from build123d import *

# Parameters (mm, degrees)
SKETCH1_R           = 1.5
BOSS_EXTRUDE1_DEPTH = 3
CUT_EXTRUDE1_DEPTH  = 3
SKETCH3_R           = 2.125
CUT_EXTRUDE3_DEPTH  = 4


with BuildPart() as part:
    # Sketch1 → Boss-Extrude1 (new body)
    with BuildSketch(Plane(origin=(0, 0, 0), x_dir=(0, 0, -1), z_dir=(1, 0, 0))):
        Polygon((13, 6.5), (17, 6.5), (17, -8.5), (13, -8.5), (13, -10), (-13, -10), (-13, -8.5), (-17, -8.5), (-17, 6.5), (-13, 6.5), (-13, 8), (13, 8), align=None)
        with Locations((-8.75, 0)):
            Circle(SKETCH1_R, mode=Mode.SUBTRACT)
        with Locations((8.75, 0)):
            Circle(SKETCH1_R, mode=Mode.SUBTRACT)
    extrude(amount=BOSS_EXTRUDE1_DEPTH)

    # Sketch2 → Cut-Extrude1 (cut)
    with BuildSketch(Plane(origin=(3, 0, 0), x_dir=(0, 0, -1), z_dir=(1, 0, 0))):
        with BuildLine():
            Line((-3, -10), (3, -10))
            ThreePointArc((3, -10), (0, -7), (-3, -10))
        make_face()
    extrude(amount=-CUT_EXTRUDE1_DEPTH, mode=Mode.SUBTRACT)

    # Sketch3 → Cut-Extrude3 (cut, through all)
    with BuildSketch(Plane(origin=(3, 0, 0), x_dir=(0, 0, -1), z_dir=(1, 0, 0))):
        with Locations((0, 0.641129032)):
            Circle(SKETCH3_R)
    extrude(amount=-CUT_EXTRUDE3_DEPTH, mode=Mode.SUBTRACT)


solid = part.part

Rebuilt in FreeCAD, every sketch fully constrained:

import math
import FreeCAD as App
import Part
import Sketcher
from FreeCAD import Vector


def add_polygon(sketch, points):
    """Adds a closed chain of lines whose ends are joined by coincident constraints."""
    first, n = sketch.GeometryCount, len(points)
    for a, b in zip(points, points[1:] + points[:1]):
        sketch.addGeometry(Part.LineSegment(App.Vector(*a, 0), App.Vector(*b, 0)), False)
    for i in range(n):
        sketch.addConstraint(Sketcher.Constraint("Coincident", first + i, 2, first + (i + 1) % n, 1))

doc = App.newDocument("Part")
params = doc.addObject("Spreadsheet::Sheet", "Params")
for row, (alias, value) in enumerate([
    ("sketch1_diameter", "3 mm"),
    ("sketch1_width", "15 mm"),
    ("sketch1_height", "4 mm"),
    ("sketch1_height2", "26 mm"),
    ("sketch1_width2", "1.5 mm"),
    ("pad1_length", "3 mm"),
    ("sketch2_radius", "3 mm"),
    ("pocket1_length", "3 mm"),
    ("sketch3_diameter", "4.25 mm"),
], start=1):
    params.set(f"A{row}", alias)
    params.set(f"B{row}", "=" + value)
    params.setAlias(f"B{row}", alias)

body = doc.addObject("PartDesign::Body", "Body")

# Sketch on YZ plane
sketch1 = body.newObject("Sketcher::SketchObject", "Sketch")
sketch1.AttachmentSupport = (doc.getObject("YZ_Plane"), [""])
sketch1.MapMode = "FlatFace"
add_polygon(sketch1, [(6.5, -17), (6.5, -13), (8, -13), (8, 13), (6.5, 13), (6.5, 17), (-8.5, 17), (-8.5, 13), (-10, 13), (-10, -13), (-8.5, -13), (-8.5, -17)])  # lines 0-11
sketch1.addGeometry(Part.Circle(Vector(0, -8.8, 0), Vector(0, 0, 1), 1.5), False)  # 12
sketch1.addGeometry(Part.Circle(Vector(0, 8.8, 0), Vector(0, 0, 1), 1.5), False)  # 13
sketch1.addConstraint([
    Sketcher.Constraint("Vertical", 0),
    Sketcher.Constraint("Horizontal", 1),
    Sketcher.Constraint("Vertical", 2),
    Sketcher.Constraint("Horizontal", 3),
    Sketcher.Constraint("Vertical", 4),
    Sketcher.Constraint("Horizontal", 5),
    Sketcher.Constraint("Vertical", 6),
    Sketcher.Constraint("Horizontal", 7),
    Sketcher.Constraint("Vertical", 8),
    Sketcher.Constraint("Horizontal", 9),
    Sketcher.Constraint("Vertical", 10),
    Sketcher.Constraint("Horizontal", 11),
    Sketcher.Constraint("Equal", 12, 13),
    Sketcher.Constraint("Symmetric", 12, 3, 13, 3, -1, 1),
    Sketcher.Constraint("Symmetric", 0, 2, 3, 2, -1),
    Sketcher.Constraint("Symmetric", 6, 2, 9, 2, -1),
    Sketcher.Constraint("PointOnObject", 12, 3, -2),
    Sketcher.Constraint("Horizontal", 3, 2, 6, 2),
    Sketcher.Constraint("Equal", 3, 7),
    Sketcher.Constraint("Equal", 0, 4),
    Sketcher.Constraint("Diameter", 12, 3.0),
    Sketcher.Constraint("DistanceX", 5, 2, 5, 1, 15.0),
    Sketcher.Constraint("DistanceY", 0, 1, 0, 2, 4.0),
    Sketcher.Constraint("DistanceY", 2, 1, 2, 2, 26.0),
    Sketcher.Constraint("DistanceX", 1, 1, 1, 2, 1.5),
    Sketcher.Constraint("DistanceX", -1, 1, 1, 2, 8.0),
    Sketcher.Constraint("DistanceY", 12, 3, 13, 3, 17.5),
])
sketch1.setExpression("Constraints[32]", "Params.sketch1_diameter")
sketch1.setExpression("Constraints[33]", "Params.sketch1_width")
sketch1.setExpression("Constraints[34]", "Params.sketch1_height")
sketch1.setExpression("Constraints[35]", "Params.sketch1_height2")
sketch1.setExpression("Constraints[36]", "Params.sketch1_width2")
pad1 = body.newObject("PartDesign::Pad", "Pad")
pad1.Profile = sketch1
pad1.setExpression("Length", "Params.pad1_length")

# Sketch on YZ plane
sketch2 = body.newObject("Sketcher::SketchObject", "Sketch001")
sketch2.AttachmentSupport = (doc.getObject("YZ_Plane"), [""])
sketch2.MapMode = "FlatFace"
sketch2.AttachmentOffset = App.Placement(Vector(0, 0, 3), App.Rotation())
sketch2.addGeometry([
    Part.LineSegment(Vector(-10, 3, 0), Vector(-10, -3, 0)),
    Part.ArcOfCircle(Part.Circle(Vector(-10, 0, 0), Vector(0, 0, 1), 3), math.radians(-90), math.radians(90)),
], False)
sketch2.addConstraint([
    Sketcher.Constraint("Coincident", 0, 1, 1, 2),
    Sketcher.Constraint("Coincident", 1, 1, 0, 2),
    Sketcher.Constraint("Vertical", 0),
    Sketcher.Constraint("PointOnObject", 1, 3, -1),
    Sketcher.Constraint("Vertical", 1, 3, 0, 1),
    Sketcher.Constraint("Radius", 1, 3.0),
    Sketcher.Constraint("DistanceX", 1, 3, -1, 1, 10.0),
])
sketch2.setExpression("Constraints[5]", "Params.sketch2_radius")
pocket1 = body.newObject("PartDesign::Pocket", "Pocket")
pocket1.Profile = sketch2
pocket1.setExpression("Length", "Params.pocket1_length")

# Sketch on YZ plane
sketch3 = body.newObject("Sketcher::SketchObject", "Sketch002")
sketch3.AttachmentSupport = (doc.getObject("YZ_Plane"), [""])
sketch3.MapMode = "FlatFace"
sketch3.AttachmentOffset = App.Placement(Vector(0, 0, 3), App.Rotation())
sketch3.addGeometry(Part.Circle(Vector(0.6, 0, 0), Vector(0, 0, 1), 2.1), False)
sketch3.addConstraint([
    Sketcher.Constraint("PointOnObject", 0, 3, -1),
    Sketcher.Constraint("Diameter", 0, 4.25),
    Sketcher.Constraint("DistanceX", -1, 1, 0, 3, 0.641129),
])
sketch3.setExpression("Constraints[1]", "Params.sketch3_diameter")
pocket2 = body.newObject("PartDesign::Pocket", "Pocket001")
pocket2.Profile = sketch3
pocket2.Type = "ThroughAll"

doc.recompute()
